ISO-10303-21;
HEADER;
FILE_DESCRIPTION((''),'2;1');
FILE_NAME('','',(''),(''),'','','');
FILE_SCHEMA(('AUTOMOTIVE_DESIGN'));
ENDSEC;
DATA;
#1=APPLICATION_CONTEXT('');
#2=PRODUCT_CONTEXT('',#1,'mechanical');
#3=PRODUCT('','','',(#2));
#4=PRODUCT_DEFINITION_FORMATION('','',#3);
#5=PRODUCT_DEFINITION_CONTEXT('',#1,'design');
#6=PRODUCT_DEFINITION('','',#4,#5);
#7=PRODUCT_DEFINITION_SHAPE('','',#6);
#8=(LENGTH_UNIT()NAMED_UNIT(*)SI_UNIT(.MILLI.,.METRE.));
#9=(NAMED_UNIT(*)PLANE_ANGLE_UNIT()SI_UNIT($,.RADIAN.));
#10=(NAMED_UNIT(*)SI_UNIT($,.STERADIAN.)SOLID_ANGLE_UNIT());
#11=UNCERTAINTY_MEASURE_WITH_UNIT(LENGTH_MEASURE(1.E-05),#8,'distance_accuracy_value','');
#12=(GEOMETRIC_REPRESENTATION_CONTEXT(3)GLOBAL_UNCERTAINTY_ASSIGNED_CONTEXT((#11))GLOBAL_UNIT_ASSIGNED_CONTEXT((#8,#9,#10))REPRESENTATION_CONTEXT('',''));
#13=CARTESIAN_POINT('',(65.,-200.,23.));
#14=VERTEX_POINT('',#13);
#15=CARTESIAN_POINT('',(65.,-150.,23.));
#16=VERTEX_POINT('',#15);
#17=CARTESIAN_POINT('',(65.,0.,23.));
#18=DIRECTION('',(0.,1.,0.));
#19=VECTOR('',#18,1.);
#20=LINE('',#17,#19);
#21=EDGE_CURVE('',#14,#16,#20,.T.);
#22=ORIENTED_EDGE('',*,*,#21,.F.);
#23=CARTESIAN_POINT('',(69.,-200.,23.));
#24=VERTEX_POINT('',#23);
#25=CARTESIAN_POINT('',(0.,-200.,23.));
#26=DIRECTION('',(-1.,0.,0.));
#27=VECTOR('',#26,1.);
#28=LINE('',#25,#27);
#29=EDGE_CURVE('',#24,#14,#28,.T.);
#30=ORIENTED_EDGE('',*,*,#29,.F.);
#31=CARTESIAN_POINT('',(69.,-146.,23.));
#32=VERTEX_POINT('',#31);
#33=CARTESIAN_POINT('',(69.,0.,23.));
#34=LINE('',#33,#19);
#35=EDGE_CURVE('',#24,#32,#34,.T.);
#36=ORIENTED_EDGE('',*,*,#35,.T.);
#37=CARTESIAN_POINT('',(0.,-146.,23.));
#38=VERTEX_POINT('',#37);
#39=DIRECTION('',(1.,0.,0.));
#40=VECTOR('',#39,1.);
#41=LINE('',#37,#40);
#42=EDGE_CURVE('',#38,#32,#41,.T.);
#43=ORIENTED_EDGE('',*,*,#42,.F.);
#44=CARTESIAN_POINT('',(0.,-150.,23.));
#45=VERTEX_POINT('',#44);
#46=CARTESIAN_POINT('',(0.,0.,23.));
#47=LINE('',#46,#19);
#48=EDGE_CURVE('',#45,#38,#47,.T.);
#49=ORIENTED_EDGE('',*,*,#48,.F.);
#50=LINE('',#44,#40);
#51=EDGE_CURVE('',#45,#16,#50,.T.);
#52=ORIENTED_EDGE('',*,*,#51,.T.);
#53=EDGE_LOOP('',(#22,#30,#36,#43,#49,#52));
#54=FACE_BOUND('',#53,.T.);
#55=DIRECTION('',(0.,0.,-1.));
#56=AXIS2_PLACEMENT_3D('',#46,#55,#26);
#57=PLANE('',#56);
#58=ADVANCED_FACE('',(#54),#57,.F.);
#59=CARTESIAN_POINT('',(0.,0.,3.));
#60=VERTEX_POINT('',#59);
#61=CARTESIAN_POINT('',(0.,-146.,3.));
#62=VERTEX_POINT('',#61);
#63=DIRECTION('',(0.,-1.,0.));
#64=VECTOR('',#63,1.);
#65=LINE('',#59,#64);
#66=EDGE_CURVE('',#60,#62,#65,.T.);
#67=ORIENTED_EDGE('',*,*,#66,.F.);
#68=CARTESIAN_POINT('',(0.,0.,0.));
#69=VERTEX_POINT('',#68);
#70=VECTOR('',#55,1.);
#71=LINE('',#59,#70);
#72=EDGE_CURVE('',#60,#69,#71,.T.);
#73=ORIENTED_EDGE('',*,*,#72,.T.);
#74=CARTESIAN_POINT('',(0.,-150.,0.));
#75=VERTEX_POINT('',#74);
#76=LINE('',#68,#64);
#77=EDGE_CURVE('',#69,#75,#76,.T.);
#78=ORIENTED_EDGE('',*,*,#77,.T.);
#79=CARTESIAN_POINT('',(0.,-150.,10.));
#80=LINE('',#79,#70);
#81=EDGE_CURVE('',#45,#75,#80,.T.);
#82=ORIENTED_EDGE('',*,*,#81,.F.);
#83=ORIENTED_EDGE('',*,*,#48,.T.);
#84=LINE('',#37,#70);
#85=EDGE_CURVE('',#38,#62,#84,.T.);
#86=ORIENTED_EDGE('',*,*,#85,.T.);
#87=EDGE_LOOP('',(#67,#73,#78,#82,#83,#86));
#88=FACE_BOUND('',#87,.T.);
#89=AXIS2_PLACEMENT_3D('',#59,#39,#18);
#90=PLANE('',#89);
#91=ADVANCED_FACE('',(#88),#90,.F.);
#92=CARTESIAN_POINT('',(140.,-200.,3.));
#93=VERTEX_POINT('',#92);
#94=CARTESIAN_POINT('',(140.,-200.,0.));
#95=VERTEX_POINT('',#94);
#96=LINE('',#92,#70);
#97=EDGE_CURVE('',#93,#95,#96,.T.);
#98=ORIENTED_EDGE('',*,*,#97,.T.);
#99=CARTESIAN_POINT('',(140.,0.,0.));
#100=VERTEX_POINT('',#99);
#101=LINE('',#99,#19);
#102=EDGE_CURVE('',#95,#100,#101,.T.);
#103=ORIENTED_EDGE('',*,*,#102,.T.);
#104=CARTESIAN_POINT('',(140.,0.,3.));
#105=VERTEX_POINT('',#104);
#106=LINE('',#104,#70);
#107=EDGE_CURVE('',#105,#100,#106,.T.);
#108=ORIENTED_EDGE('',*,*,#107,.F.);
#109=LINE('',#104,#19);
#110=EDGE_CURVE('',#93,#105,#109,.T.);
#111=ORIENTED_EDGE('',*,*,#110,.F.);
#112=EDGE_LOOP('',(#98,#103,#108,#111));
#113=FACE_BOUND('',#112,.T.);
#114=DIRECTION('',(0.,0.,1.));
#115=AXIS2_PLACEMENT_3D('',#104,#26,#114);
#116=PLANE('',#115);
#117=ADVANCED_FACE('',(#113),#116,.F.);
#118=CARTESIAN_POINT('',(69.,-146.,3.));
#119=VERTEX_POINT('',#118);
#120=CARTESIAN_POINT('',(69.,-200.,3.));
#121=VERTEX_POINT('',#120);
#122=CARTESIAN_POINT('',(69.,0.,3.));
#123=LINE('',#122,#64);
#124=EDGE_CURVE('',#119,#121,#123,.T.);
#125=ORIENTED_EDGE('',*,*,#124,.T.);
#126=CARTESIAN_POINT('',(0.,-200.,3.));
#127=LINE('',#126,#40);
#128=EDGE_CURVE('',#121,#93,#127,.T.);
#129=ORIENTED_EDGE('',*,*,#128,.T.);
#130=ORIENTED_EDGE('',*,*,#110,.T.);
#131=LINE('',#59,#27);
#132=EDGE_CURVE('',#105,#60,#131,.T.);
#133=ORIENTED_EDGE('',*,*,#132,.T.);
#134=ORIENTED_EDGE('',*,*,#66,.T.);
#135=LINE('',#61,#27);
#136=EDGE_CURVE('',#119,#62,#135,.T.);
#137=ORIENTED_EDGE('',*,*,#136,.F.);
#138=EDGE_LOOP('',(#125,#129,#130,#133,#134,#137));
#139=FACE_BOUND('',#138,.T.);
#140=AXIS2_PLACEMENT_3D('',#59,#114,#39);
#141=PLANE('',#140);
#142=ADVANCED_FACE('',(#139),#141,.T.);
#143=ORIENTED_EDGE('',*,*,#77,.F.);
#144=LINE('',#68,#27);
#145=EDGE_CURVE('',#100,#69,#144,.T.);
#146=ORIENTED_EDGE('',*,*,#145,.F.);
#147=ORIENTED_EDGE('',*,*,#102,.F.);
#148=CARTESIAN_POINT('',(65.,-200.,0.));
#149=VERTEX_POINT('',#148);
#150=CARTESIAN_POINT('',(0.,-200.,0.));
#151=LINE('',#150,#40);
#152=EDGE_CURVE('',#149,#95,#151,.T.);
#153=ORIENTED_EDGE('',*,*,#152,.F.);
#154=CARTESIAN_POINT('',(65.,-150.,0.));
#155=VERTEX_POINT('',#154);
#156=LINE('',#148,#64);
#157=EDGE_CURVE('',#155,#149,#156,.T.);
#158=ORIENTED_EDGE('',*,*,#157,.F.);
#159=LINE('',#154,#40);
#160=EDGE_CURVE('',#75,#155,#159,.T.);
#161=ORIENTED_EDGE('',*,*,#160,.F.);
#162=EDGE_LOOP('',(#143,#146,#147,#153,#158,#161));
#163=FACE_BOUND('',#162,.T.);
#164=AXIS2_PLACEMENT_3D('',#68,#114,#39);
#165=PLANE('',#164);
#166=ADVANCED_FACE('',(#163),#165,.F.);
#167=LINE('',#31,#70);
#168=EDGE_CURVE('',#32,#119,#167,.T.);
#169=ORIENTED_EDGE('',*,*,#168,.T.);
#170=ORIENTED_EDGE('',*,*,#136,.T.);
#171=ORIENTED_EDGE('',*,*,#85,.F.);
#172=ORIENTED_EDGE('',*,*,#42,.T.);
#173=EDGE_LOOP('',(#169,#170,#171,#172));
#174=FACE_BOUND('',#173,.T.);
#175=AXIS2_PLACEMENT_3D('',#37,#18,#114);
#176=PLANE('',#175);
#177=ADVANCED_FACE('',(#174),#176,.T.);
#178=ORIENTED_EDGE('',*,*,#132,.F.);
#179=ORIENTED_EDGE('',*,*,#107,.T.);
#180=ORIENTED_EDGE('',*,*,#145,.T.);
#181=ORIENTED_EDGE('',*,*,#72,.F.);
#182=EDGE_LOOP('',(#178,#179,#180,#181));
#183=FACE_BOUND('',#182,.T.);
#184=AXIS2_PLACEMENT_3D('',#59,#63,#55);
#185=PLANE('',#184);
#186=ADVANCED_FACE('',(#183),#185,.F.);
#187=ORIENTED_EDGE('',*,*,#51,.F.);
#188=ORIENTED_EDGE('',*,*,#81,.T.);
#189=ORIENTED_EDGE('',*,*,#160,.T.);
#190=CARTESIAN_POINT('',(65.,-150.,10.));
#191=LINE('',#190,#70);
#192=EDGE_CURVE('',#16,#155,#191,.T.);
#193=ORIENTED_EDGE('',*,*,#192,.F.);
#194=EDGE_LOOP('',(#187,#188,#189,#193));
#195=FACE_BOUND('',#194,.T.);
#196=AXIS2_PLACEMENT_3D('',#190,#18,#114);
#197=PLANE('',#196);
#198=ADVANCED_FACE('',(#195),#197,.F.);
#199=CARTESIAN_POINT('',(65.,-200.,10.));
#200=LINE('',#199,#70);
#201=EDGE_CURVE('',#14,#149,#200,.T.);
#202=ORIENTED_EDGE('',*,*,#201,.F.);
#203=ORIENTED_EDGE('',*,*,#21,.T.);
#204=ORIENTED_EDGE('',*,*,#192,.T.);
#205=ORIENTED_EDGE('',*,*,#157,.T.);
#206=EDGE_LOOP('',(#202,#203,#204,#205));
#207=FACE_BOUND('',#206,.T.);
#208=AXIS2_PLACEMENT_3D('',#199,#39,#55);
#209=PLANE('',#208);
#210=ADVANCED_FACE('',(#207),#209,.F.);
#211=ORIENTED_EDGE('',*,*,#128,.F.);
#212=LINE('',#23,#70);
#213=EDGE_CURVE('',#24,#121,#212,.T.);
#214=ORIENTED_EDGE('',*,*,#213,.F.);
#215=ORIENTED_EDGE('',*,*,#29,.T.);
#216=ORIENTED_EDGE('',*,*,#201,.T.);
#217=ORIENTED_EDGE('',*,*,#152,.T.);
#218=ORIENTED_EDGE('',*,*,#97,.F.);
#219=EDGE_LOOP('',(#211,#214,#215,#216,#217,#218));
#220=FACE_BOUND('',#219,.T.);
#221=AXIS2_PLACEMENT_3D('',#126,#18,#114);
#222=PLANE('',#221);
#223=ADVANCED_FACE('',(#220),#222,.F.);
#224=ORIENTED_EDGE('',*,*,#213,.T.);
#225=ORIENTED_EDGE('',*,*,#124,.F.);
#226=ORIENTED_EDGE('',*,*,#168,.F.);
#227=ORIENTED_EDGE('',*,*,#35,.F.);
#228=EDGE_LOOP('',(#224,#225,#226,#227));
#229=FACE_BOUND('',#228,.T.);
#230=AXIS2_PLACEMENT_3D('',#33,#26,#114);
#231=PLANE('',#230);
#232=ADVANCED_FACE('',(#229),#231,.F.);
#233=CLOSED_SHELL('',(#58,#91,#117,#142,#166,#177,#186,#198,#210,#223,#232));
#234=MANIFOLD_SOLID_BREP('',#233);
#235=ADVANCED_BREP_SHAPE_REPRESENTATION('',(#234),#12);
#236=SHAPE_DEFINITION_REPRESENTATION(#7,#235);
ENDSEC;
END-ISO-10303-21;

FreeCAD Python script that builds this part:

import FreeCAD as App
import Part
import Sketcher
from FreeCAD import Vector
Q = App.Units.Quantity


def add_polygon(sketch, points):
    """Adds a closed chain of lines whose ends are joined by coincident constraints."""
    first, n = sketch.GeometryCount, len(points)
    for a, b in zip(points, points[1:] + points[:1]):
        sketch.addGeometry(Part.LineSegment(App.Vector(*a, 0), App.Vector(*b, 0)), False)
    for i in range(n):
        sketch.addConstraint(Sketcher.Constraint("Coincident", first + i, 2, first + (i + 1) % n, 1))

doc = App.newDocument("Part")
body = doc.addObject("PartDesign::Body", "Body")

# Sketch on XY plane
sketch1 = doc.addObject("Sketcher::SketchObject", "Sketch")
body.addObject(sketch1)
sketch1.AttachmentSupport = (doc.XY_Plane, [""])
sketch1.MapMode = "FlatFace"
add_polygon(sketch1, [(0, 0), (0, -200), (140, -200), (140, 0)])  # lines 0-3
sketch1.addConstraint([
    Sketcher.Constraint("Vertical", 0),
    Sketcher.Constraint("Horizontal", 1),
    Sketcher.Constraint("Vertical", 2),
    Sketcher.Constraint("Horizontal", 3),
    Sketcher.Constraint("Coincident", 3, 2, -1, 1),
    Sketcher.Constraint("DistanceX", 1, 1, 1, 2, Q("140 mm")),
    Sketcher.Constraint("DistanceY", 0, 2, 0, 1, Q("200 mm")),
])
pad1 = doc.addObject("PartDesign::Pad", "Pad")
body.addObject(pad1)
pad1.Profile = sketch1
pad1.Length = 3

# Sketch on XY plane
sketch2 = doc.addObject("Sketcher::SketchObject", "Sketch001")
body.addObject(sketch2)
sketch2.AttachmentSupport = (doc.XY_Plane, [""])
sketch2.MapMode = "FlatFace"
add_polygon(sketch2, [(65, -150), (65, -200), (0, -200), (0, -150)])  # lines 0-3
sketch2.addConstraint([
    Sketcher.Constraint("Vertical", 0),
    Sketcher.Constraint("Horizontal", 1),
    Sketcher.Constraint("Vertical", 2),
    Sketcher.Constraint("Horizontal", 3),
    Sketcher.Constraint("PointOnObject", 1, 2, -2),
    Sketcher.Constraint("DistanceX", 1, 2, 1, 1, Q("65 mm")),
    Sketcher.Constraint("DistanceY", 0, 2, 0, 1, Q("50 mm")),
    Sketcher.Constraint("DistanceY", 0, 2, -1, 1, Q("200 mm")),
])
pocket1 = doc.addObject("PartDesign::Pocket", "Pocket")
body.addObject(pocket1)
pocket1.Profile = sketch2
pocket1.Length = 10
pocket1.Reversed = True

# Sketch on XY plane
sketch3 = doc.addObject("Sketcher::SketchObject", "Sketch002")
body.addObject(sketch3)
sketch3.AttachmentSupport = (doc.XY_Plane, [""])
sketch3.MapMode = "FlatFace"
add_polygon(sketch3, [(69, -200), (65, -200), (65, -150), (0, -150), (0, -146), (69, -146)])  # lines 0-5
sketch3.addConstraint([
    Sketcher.Constraint("Horizontal", 0),
    Sketcher.Constraint("Vertical", 1),
    Sketcher.Constraint("Horizontal", 2),
    Sketcher.Constraint("Vertical", 3),
    Sketcher.Constraint("Horizontal", 4),
    Sketcher.Constraint("Vertical", 5),
    Sketcher.Constraint("PointOnObject", 2, 2, -2),
    Sketcher.Constraint("Equal", 0, 3),
    Sketcher.Constraint("DistanceX", 0, 2, 0, 1, Q("4 mm")),
    Sketcher.Constraint("DistanceX", 2, 2, 2, 1, Q("65 mm")),
    Sketcher.Constraint("DistanceY", 1, 1, 1, 2, Q("50 mm")),
    Sketcher.Constraint("DistanceY", 0, 2, -1, 1, Q("200 mm")),
])
pad2 = doc.addObject("PartDesign::Pad", "Pad001")
body.addObject(pad2)
pad2.Profile = sketch3
pad2.Length = 23

doc.recompute()
